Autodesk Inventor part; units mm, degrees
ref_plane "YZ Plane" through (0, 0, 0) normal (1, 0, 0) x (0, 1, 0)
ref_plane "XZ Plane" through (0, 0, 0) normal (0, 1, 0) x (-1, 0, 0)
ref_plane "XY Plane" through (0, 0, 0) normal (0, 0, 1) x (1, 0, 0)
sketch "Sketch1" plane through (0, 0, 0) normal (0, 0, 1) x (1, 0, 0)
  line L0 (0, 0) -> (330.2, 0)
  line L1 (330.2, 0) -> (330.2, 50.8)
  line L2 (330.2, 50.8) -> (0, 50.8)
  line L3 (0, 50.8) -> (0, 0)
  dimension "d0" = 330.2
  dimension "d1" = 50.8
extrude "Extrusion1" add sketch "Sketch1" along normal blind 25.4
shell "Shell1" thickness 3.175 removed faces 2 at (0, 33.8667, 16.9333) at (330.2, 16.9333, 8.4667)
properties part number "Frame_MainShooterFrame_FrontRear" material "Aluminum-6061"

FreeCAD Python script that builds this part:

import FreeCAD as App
import Part
import Sketcher
from FreeCAD import Vector
Q = App.Units.Quantity


def faces_at(feature, points):
    """Names of the faces that lie closest to the given points."""
    faces = feature.Shape.Faces
    near = lambda p: min(range(len(faces)), key=lambda i: faces[i].distToShape(Part.Vertex(*p))[0])
    return sorted({f"Face{near(p) + 1}" for p in points})


def add_polygon(sketch, points):
    """Adds a closed chain of lines whose ends are joined by coincident constraints."""
    first, n = sketch.GeometryCount, len(points)
    for a, b in zip(points, points[1:] + points[:1]):
        sketch.addGeometry(Part.LineSegment(App.Vector(*a, 0), App.Vector(*b, 0)), False)
    for i in range(n):
        sketch.addConstraint(Sketcher.Constraint("Coincident", first + i, 2, first + (i + 1) % n, 1))

doc = App.newDocument("Part")
body = doc.addObject("PartDesign::Body", "Body")

# Sketch on XY plane
sketch1 = doc.addObject("Sketcher::SketchObject", "Sketch")
body.addObject(sketch1)
sketch1.AttachmentSupport = (doc.XY_Plane, [""])
sketch1.MapMode = "FlatFace"
add_polygon(sketch1, [(0, 50.8), (0, 0), (330.2, 0), (330.2, 50.8)])  # lines 0-3
sketch1.addConstraint([
    Sketcher.Constraint("Vertical", 0),
    Sketcher.Constraint("Horizontal", 1),
    Sketcher.Constraint("Vertical", 2),
    Sketcher.Constraint("Horizontal", 3),
    Sketcher.Constraint("Coincident", 0, 2, -1, 1),
    Sketcher.Constraint("DistanceX", 1, 1, 1, 2, Q("13 in")),
    Sketcher.Constraint("DistanceY", 0, 2, 0, 1, Q("2 in")),
])
pad1 = doc.addObject("PartDesign::Pad", "Pad")
body.addObject(pad1)
pad1.Profile = sketch1
pad1.Length = Q("1 in")
doc.recompute()

thickness = doc.addObject("PartDesign::Thickness", "Thickness")
body.addObject(thickness)
thickness.Base = (pad1, faces_at(pad1, [(0, 33.867, 16.933), (330.2, 16.933, 8.467)]))
thickness.Value = Q("0.125 in")
thickness.Reversed = True
thickness.Join = "Intersection"

doc.recompute()
